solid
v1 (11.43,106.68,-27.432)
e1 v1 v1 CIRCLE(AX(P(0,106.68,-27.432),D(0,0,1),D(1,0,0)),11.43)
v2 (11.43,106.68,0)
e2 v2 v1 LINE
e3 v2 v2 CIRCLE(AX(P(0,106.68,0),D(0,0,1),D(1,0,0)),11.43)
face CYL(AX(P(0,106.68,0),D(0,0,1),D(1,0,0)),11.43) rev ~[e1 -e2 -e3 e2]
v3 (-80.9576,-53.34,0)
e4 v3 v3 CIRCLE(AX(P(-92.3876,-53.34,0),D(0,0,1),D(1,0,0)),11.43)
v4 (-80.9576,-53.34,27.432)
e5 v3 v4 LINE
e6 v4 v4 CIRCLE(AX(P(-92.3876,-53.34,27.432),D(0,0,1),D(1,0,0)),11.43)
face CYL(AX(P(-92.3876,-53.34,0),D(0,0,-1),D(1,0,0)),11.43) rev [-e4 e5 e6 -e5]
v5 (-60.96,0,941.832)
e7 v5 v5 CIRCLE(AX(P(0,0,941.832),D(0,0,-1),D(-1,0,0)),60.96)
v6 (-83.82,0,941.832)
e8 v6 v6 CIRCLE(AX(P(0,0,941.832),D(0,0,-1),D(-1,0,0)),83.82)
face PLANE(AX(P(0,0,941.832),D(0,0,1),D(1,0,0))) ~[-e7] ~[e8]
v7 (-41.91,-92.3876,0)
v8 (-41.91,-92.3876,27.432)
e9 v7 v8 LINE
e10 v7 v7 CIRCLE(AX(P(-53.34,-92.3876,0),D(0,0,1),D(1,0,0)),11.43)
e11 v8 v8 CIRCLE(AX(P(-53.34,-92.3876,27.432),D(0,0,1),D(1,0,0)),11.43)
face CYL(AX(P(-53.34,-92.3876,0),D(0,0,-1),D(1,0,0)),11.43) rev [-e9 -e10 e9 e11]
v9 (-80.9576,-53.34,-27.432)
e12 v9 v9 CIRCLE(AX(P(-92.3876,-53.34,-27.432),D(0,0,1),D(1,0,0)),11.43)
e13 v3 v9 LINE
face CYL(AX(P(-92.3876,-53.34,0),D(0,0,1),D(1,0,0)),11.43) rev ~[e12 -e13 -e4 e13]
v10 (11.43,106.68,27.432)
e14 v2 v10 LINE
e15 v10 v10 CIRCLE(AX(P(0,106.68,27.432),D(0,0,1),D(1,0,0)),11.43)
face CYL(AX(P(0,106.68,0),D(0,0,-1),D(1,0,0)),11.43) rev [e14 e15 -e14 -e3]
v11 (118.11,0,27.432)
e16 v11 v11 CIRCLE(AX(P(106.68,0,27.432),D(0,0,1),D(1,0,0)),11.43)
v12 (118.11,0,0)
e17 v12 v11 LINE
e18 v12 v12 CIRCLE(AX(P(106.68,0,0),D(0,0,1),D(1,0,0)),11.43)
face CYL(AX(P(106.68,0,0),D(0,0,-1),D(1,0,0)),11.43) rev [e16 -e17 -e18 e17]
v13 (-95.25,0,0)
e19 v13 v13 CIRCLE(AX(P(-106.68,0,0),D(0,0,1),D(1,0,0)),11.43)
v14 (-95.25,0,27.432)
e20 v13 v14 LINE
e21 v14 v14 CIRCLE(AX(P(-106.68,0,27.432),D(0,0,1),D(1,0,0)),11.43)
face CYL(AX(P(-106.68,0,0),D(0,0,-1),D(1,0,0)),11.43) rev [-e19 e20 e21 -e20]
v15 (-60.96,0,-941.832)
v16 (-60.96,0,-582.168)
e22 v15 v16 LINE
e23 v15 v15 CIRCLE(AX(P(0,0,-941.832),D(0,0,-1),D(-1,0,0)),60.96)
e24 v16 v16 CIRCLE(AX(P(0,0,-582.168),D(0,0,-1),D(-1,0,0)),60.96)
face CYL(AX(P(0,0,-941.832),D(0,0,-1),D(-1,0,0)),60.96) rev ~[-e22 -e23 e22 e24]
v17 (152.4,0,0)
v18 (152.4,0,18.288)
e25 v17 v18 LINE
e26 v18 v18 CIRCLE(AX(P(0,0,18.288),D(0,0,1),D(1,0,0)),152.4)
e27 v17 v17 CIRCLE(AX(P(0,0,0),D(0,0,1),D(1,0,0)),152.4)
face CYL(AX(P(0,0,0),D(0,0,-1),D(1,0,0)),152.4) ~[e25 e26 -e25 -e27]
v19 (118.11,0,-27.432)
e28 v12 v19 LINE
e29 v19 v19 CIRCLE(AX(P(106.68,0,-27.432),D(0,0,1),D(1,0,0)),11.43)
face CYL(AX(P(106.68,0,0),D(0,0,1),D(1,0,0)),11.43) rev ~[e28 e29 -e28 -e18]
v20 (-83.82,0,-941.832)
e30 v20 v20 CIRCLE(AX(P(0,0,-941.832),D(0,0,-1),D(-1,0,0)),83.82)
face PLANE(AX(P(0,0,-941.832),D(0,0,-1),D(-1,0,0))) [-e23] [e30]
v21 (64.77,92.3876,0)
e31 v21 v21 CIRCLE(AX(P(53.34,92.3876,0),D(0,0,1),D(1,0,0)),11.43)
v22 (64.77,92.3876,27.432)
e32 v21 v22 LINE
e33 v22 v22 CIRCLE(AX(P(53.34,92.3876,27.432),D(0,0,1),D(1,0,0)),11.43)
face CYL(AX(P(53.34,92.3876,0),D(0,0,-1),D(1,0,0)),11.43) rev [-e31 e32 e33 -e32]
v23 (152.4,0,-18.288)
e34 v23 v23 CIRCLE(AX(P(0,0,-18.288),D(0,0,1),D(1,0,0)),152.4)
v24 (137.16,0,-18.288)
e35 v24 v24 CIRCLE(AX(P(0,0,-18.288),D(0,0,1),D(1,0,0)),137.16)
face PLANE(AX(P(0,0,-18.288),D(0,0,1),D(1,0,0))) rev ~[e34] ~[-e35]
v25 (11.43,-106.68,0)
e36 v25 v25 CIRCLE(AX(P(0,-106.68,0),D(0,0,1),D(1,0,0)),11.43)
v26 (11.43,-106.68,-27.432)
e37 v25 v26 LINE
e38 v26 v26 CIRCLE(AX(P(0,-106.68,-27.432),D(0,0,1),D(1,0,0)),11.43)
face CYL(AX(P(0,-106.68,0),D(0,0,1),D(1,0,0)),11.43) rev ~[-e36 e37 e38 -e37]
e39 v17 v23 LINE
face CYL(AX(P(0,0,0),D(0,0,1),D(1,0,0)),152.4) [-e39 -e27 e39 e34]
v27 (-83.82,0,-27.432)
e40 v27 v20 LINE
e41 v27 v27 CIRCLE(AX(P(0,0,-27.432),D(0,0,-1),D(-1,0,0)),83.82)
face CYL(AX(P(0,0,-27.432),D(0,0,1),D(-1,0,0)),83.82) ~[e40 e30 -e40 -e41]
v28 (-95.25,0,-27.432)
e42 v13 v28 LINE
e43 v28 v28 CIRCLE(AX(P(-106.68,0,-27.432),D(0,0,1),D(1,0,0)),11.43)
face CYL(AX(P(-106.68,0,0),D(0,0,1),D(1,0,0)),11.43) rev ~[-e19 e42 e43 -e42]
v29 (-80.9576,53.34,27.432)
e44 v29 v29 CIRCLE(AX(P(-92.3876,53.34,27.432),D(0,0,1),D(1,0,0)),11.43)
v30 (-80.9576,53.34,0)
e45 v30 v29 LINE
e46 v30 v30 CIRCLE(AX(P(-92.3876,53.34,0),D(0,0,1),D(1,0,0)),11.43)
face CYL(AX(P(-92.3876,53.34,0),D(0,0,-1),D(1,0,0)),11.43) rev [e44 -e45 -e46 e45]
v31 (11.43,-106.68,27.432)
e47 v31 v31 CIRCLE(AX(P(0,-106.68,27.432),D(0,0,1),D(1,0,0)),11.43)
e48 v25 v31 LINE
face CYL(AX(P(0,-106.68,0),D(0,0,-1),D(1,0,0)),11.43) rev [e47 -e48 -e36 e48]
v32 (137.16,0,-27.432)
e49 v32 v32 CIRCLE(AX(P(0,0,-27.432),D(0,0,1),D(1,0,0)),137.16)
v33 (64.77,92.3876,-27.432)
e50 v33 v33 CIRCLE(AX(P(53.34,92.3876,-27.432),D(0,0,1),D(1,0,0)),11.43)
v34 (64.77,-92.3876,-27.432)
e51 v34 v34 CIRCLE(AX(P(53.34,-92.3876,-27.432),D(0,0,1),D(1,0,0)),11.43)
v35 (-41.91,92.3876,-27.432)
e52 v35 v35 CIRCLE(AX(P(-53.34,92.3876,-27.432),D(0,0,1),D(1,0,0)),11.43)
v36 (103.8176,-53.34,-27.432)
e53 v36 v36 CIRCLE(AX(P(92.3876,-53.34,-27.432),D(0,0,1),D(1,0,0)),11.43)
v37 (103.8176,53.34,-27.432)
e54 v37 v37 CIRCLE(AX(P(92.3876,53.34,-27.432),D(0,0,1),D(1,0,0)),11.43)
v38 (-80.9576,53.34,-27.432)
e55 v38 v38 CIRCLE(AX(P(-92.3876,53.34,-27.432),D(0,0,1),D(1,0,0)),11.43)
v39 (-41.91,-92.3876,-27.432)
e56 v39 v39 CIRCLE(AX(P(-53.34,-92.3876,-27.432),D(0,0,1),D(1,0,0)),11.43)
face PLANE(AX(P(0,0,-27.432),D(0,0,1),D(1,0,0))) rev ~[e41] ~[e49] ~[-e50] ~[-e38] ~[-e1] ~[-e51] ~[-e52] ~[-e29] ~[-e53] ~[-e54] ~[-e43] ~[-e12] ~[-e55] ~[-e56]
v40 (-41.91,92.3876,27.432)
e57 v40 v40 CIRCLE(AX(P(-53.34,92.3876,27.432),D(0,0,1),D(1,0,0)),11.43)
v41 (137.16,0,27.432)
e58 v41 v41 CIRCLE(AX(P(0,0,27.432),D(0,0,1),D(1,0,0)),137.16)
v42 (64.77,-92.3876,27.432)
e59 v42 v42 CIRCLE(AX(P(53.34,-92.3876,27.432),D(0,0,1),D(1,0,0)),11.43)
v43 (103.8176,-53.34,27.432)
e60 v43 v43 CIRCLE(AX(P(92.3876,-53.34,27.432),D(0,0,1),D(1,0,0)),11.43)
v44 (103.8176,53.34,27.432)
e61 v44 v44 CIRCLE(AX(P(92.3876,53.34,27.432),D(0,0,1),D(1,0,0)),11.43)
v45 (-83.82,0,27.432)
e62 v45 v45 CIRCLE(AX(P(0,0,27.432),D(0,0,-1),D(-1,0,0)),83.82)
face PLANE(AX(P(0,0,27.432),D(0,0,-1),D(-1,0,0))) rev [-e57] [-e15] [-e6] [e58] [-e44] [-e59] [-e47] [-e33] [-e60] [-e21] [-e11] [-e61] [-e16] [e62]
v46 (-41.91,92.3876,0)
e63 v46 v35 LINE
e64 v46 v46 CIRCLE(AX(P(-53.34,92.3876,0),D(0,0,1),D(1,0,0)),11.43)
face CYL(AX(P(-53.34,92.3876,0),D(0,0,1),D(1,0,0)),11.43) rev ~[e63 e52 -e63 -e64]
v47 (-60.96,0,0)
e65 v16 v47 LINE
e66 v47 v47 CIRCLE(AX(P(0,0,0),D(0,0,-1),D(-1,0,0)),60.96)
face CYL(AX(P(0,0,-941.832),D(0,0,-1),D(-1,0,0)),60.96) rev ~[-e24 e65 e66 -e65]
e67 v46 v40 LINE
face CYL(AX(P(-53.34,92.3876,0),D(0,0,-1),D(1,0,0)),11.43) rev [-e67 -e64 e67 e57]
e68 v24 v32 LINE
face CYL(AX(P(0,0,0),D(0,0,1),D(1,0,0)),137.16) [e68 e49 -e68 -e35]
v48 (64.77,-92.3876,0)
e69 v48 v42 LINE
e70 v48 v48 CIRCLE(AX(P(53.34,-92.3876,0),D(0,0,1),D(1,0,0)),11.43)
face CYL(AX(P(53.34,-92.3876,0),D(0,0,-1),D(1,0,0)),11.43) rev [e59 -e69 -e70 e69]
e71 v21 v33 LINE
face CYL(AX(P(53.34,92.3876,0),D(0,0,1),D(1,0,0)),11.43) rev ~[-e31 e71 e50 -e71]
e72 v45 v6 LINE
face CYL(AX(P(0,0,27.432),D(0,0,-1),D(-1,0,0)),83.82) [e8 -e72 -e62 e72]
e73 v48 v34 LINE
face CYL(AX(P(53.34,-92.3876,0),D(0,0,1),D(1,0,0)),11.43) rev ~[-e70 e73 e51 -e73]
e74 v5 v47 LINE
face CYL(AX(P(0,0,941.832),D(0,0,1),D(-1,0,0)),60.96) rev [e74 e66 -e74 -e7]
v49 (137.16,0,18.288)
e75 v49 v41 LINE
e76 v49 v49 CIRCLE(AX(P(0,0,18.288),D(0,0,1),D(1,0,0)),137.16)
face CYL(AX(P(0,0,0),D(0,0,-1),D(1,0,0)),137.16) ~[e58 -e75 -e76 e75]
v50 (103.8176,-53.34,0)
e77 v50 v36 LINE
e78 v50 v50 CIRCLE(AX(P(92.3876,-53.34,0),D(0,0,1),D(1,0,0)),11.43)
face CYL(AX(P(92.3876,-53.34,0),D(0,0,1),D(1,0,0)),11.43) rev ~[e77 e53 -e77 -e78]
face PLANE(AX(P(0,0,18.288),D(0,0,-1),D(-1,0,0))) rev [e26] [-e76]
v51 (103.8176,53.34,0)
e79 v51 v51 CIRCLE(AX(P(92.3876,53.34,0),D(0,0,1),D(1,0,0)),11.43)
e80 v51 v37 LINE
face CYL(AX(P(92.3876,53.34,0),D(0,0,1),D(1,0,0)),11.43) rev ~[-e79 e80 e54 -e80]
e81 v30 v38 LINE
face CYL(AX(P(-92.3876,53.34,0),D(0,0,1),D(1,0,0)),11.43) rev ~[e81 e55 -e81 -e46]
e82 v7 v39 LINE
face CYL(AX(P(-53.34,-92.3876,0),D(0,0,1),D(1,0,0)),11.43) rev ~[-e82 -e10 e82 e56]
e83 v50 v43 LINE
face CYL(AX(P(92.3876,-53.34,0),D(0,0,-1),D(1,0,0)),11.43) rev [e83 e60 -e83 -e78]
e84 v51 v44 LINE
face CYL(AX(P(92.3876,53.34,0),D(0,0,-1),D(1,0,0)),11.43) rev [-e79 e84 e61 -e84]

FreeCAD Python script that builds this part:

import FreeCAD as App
import Part
import Sketcher
from FreeCAD import Vector
Q = App.Units.Quantity

doc = App.newDocument("Part")
params = doc.addObject("Spreadsheet::Sheet", "Params")
for row, (alias, value) in enumerate([
    ("sketch1_diameter", "10.8 in"),
    ("sketch1_diameter2", "0.9 in"),
    ("pad1_length", "1.08 in"),
    ("sketch2_diameter", "12 in"),
    ("sketch2_diameter2", "10.8 in"),
    ("pad2_length", "0.72 in"),
    ("sketch3_diameter", "6.6 in"),
    ("pad3_length", "36 in"),
    ("sketch4_diameter", "4.8 in"),
    ("pocket1_length", "60 in"),
], start=1):
    params.set(f"A{row}", alias)
    params.set(f"B{row}", "=" + value)
    params.setAlias(f"B{row}", alias)

body = doc.addObject("PartDesign::Body", "Body")

# Sketch on XY plane
sketch1 = body.newObject("Sketcher::SketchObject", "Sketch")
sketch1.AttachmentSupport = (doc.getObject("XY_Plane"), [""])
sketch1.MapMode = "FlatFace"
sketch1.addGeometry(Part.Circle(Vector(0, 0, 0), Vector(0, 0, 1), 137), False)
sketch1.addGeometry(Part.Circle(Vector(-53, -92, 0), Vector(0, 0, 1), 11), False)
sketch1.addGeometry(Part.Circle(Vector(-92, -53, 0), Vector(0, 0, 1), 11), False)
sketch1.addGeometry(Part.Circle(Vector(0, -107, 0), Vector(0, 0, 1), 11), False)
sketch1.addGeometry(Part.Circle(Vector(53, -92, 0), Vector(0, 0, 1), 11), False)
sketch1.addGeometry(Part.Circle(Vector(92, -53, 0), Vector(0, 0, 1), 11), False)
sketch1.addGeometry(Part.Circle(Vector(-107, 0, 0), Vector(0, 0, 1), 11), False)
sketch1.addGeometry(Part.Circle(Vector(-92, 53, 0), Vector(0, 0, 1), 11), False)
sketch1.addGeometry(Part.Circle(Vector(-53, 92, 0), Vector(0, 0, 1), 11), False)
sketch1.addGeometry(Part.Circle(Vector(107, 0, 0), Vector(0, 0, 1), 11), False)
sketch1.addGeometry(Part.Circle(Vector(92, 53, 0), Vector(0, 0, 1), 11), False)
sketch1.addGeometry(Part.Circle(Vector(0, 107, 0), Vector(0, 0, 1), 11), False)
sketch1.addGeometry(Part.Circle(Vector(53, 92, 0), Vector(0, 0, 1), 11), False)
sketch1.addConstraint(Sketcher.Constraint("Coincident", 0, 3, -1, 1))
sketch1.addConstraint(Sketcher.Constraint("Equal", 1, 2))
sketch1.addConstraint(Sketcher.Constraint("Equal", 2, 3))
sketch1.addConstraint(Sketcher.Constraint("Equal", 3, 4))
sketch1.addConstraint(Sketcher.Constraint("Equal", 4, 5))
sketch1.addConstraint(Sketcher.Constraint("Equal", 5, 6))
sketch1.addConstraint(Sketcher.Constraint("Equal", 6, 7))
sketch1.addConstraint(Sketcher.Constraint("Equal", 7, 8))
sketch1.addConstraint(Sketcher.Constraint("Equal", 8, 9))
sketch1.addConstraint(Sketcher.Constraint("Equal", 9, 10))
sketch1.addConstraint(Sketcher.Constraint("Equal", 10, 11))
sketch1.addConstraint(Sketcher.Constraint("Equal", 11, 12))
sketch1.addConstraint(Sketcher.Constraint("Symmetric", 5, 3, 7, 3, -1, 1))
sketch1.addConstraint(Sketcher.Constraint("Symmetric", 4, 3, 8, 3, -1, 1))
sketch1.addConstraint(Sketcher.Constraint("Symmetric", 6, 3, 9, 3, -1, 1))
sketch1.addConstraint(Sketcher.Constraint("Symmetric", 2, 3, 10, 3, -1, 1))
sketch1.addConstraint(Sketcher.Constraint("Symmetric", 3, 3, 11, 3, -1, 1))
sketch1.addConstraint(Sketcher.Constraint("Symmetric", 1, 3, 12, 3, -1, 1))
sketch1.addConstraint(Sketcher.Constraint("Symmetric", 1, 3, 4, 3, -2))
sketch1.addConstraint(Sketcher.Constraint("Symmetric", 2, 3, 5, 3, -2))
sketch1.addConstraint(Sketcher.Constraint("PointOnObject", 3, 3, -2))
sketch1.addConstraint(Sketcher.Constraint("PointOnObject", 6, 3, -1))
sketch1.addConstraint(Sketcher.Constraint("Diameter", 0, Q("10.8 in")))
sketch1.addConstraint(Sketcher.Constraint("Diameter", 1, Q("0.9 in")))
sketch1.addConstraint(Sketcher.Constraint("DistanceX", 1, 3, -1, 1, Q("2.1 in")))
sketch1.addConstraint(Sketcher.Constraint("DistanceY", 2, 3, -1, 1, Q("2.1 in")))
sketch1.addConstraint(Sketcher.Constraint("DistanceY", 3, 3, -1, 1, Q("4.2 in")))
sketch1.addConstraint(Sketcher.Constraint("DistanceX", 6, 3, -1, 1, Q("4.2 in")))
sketch1.addConstraint(Sketcher.Constraint("DistanceY", 1, 3, -1, 1, Q("3.6373 in")))
sketch1.addConstraint(Sketcher.Constraint("DistanceX", 2, 3, -1, 1, Q("3.6373 in")))
sketch1.setExpression("Constraints[22]", "Params.sketch1_diameter")
sketch1.setExpression("Constraints[23]", "Params.sketch1_diameter2")
pad1 = body.newObject("PartDesign::Pad", "Pad")
pad1.Profile = sketch1
pad1.setExpression("Length", "Params.pad1_length")
pad1.Reversed = True

# Sketch on XY plane
sketch2 = body.newObject("Sketcher::SketchObject", "Sketch001")
sketch2.AttachmentSupport = (doc.getObject("XY_Plane"), [""])
sketch2.MapMode = "FlatFace"
sketch2.addGeometry(Part.Circle(Vector(0, 0, 0), Vector(0, 0, 1), 152), False)
sketch2.addGeometry(Part.Circle(Vector(0, 0, 0), Vector(0, 0, 1), 137), False)
sketch2.addConstraint(Sketcher.Constraint("Coincident", 0, 3, -1, 1))
sketch2.addConstraint(Sketcher.Constraint("Coincident", 1, 3, -1, 1))
sketch2.addConstraint(Sketcher.Constraint("Diameter", 0, Q("12 in")))
sketch2.addConstraint(Sketcher.Constraint("Diameter", 1, Q("10.8 in")))
sketch2.setExpression("Constraints[2]", "Params.sketch2_diameter")
sketch2.setExpression("Constraints[3]", "Params.sketch2_diameter2")
pad2 = body.newObject("PartDesign::Pad", "Pad001")
pad2.Profile = sketch2
pad2.setExpression("Length", "Params.pad2_length")
pad2.Reversed = True

# Sketch on XY plane
sketch3 = body.newObject("Sketcher::SketchObject", "Sketch002")
sketch3.AttachmentSupport = (doc.getObject("XY_Plane"), [""])
sketch3.MapMode = "FlatFace"
sketch3.AttachmentOffset = App.Placement(Vector(0, 0, -1.08 * 25.4), App.Rotation())
sketch3.addGeometry(Part.Circle(Vector(0, 0, 0), Vector(0, 0, 1), 84), False)
sketch3.addConstraint(Sketcher.Constraint("Coincident", 0, 3, -1, 1))
sketch3.addConstraint(Sketcher.Constraint("Diameter", 0, Q("6.6 in")))
sketch3.setExpression("Constraints[1]", "Params.sketch3_diameter")
pad3 = body.newObject("PartDesign::Pad", "Pad002")
pad3.Profile = sketch3
pad3.setExpression("Length", "Params.pad3_length")
pad3.Reversed = True

# Sketch on XY plane
sketch4 = body.newObject("Sketcher::SketchObject", "Sketch003")
sketch4.AttachmentSupport = (doc.getObject("XY_Plane"), [""])
sketch4.MapMode = "FlatFace"
sketch4.AttachmentOffset = App.Placement(Vector(0, 0, -37.08 * 25.4), App.Rotation())
sketch4.addGeometry(Part.Circle(Vector(0, 0, 0), Vector(0, 0, 1), 61), False)
sketch4.addConstraint(Sketcher.Constraint("Coincident", 0, 3, -1, 1))
sketch4.addConstraint(Sketcher.Constraint("Diameter", 0, Q("4.8 in")))
sketch4.setExpression("Constraints[1]", "Params.sketch4_diameter")
pocket1 = body.newObject("PartDesign::Pocket", "Pocket")
pocket1.Profile = sketch4
pocket1.setExpression("Length", "Params.pocket1_length")
pocket1.Reversed = True
doc.recompute()

mirrored = body.newObject("PartDesign::Mirrored", "Mirrored")
mirrored.Originals = [pad2, pad1, pad3, pocket1]
mirrored.MirrorPlane = (doc.getObject("XY_Plane"), [""])
body.Tip = mirrored

doc.recompute()
